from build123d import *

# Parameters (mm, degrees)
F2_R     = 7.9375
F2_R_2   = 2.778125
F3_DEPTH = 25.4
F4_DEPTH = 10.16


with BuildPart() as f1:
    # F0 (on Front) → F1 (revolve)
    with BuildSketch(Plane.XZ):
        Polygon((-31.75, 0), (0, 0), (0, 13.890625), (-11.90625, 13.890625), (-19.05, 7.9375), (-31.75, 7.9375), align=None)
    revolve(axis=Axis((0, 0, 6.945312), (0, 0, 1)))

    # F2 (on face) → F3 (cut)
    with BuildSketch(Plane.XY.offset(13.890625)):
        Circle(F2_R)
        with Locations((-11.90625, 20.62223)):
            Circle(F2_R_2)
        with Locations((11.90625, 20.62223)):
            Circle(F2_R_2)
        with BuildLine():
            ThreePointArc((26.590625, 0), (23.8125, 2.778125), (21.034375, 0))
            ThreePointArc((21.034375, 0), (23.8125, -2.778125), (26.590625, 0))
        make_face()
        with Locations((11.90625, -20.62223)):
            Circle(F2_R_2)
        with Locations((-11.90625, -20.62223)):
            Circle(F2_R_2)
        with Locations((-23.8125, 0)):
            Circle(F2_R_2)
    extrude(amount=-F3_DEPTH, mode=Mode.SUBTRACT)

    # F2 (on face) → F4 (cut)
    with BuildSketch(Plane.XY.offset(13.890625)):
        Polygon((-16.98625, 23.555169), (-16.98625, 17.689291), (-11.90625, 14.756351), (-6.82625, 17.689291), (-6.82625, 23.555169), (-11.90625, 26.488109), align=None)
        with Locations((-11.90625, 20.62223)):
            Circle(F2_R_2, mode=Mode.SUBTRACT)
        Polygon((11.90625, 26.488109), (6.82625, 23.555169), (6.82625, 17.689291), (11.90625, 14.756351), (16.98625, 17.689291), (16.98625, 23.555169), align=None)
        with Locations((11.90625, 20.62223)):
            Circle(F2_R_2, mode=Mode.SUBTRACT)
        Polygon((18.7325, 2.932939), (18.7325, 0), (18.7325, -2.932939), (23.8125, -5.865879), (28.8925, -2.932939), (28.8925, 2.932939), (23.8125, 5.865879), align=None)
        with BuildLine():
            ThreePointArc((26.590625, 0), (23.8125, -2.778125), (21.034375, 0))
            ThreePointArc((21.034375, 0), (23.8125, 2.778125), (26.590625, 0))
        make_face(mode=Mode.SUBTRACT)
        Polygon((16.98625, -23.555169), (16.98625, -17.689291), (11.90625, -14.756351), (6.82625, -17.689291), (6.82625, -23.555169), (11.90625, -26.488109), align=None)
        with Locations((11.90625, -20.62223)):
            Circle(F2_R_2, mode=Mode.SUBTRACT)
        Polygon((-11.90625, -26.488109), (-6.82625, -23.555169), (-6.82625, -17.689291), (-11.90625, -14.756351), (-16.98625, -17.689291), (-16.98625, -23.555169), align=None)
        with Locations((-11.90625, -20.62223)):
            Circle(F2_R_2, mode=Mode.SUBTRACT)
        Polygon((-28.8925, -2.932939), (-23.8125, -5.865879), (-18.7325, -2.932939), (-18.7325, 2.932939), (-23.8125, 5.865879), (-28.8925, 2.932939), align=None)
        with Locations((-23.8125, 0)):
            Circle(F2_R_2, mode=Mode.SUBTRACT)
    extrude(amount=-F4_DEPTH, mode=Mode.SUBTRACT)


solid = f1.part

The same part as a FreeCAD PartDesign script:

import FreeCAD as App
import Part
import Sketcher

V = App.Vector
Q = App.Units.Quantity

doc = App.newDocument("Part")
body = doc.addObject("PartDesign::Body", "Body")

sketch1 = body.newObject("Sketcher::SketchObject", "Sketch")
sketch1.AttachmentSupport = (doc.getObject("XZ_Plane"), [""])
sketch1.MapMode = "FlatFace"
sketch1.addGeometry([
    Part.LineSegment(V(-32, 0, 0), V(0, 0, 0)),
    Part.LineSegment(V(0, 0, 0), V(0, 14, 0)),
    Part.LineSegment(V(0, 14, 0), V(-12, 14, 0)),
    Part.LineSegment(V(-12, 14, 0), V(-19, 8, 0)),
    Part.LineSegment(V(-19, 8, 0), V(-32, 8, 0)),
    Part.LineSegment(V(-32, 8, 0), V(-32, 0, 0)),
], False)
sketch1.addConstraint([
    Sketcher.Constraint("Coincident", 0, 2, 1, 1),
    Sketcher.Constraint("Coincident", 1, 2, 2, 1),
    Sketcher.Constraint("Coincident", 2, 2, 3, 1),
    Sketcher.Constraint("Coincident", 3, 2, 4, 1),
    Sketcher.Constraint("Coincident", 4, 2, 5, 1),
    Sketcher.Constraint("Coincident", 5, 2, 0, 1),
    Sketcher.Constraint("Horizontal", 0),
    Sketcher.Constraint("Vertical", 1),
    Sketcher.Constraint("Horizontal", 2),
    Sketcher.Constraint("Horizontal", 4),
    Sketcher.Constraint("Vertical", 5),
    Sketcher.Constraint("Coincident", 0, 2, -1, 1),
    Sketcher.Constraint("DistanceX", 4, 2, 4, 1, Q("0.5 in")),
    Sketcher.Constraint("DistanceX", 0, 1, 0, 2, Q("1.25 in")),
    Sketcher.Constraint("DistanceX", 2, 2, 2, 1, Q("0.46875 in")),
    Sketcher.Constraint("DistanceY", 1, 1, 1, 2, Q("0.546875 in")),
    Sketcher.Constraint("DistanceY", 5, 2, 5, 1, Q("0.3125 in")),
])
revolution = body.newObject("PartDesign::Revolution", "Revolution")
revolution.Profile = sketch1
revolution.ReferenceAxis = (sketch1, ["V_Axis"])
revolution.Angle = 360

sketch2 = body.newObject("Sketcher::SketchObject", "Sketch001")
sketch2.AttachmentSupport = (doc.getObject("XY_Plane"), [""])
sketch2.MapMode = "FlatFace"
sketch2.AttachmentOffset = App.Placement(V(0, 0, 0.546875 * 25.4), App.Rotation())
sketch2.addGeometry([
    Part.Circle(V(0, 0, 0), V(0, 0, 1), 7.9),
    Part.Circle(V(-11.9, 20.6, 0), V(0, 0, 1), 2.8),
    Part.Circle(V(11.9, 20.6, 0), V(0, 0, 1), 2.8),
    Part.Circle(V(23.8, 0, 0), V(0, 0, 1), 2.8),
    Part.Circle(V(11.9, -20.6, 0), V(0, 0, 1), 2.8),
    Part.Circle(V(-11.9, -20.6, 0), V(0, 0, 1), 2.8),
    Part.Circle(V(-23.8, 0, 0), V(0, 0, 1), 2.8),
], False)
sketch2.addConstraint([
    Sketcher.Constraint("Coincident", 0, 3, -1, 1),
    Sketcher.Constraint("Equal", 1, 2),
    Sketcher.Constraint("Equal", 2, 3),
    Sketcher.Constraint("Equal", 3, 4),
    Sketcher.Constraint("Equal", 4, 5),
    Sketcher.Constraint("Equal", 5, 6),
    Sketcher.Constraint("Symmetric", 1, 3, 4, 3, -1, 1),
    Sketcher.Constraint("Symmetric", 2, 3, 5, 3, -1, 1),
    Sketcher.Constraint("Symmetric", 3, 3, 6, 3, -1, 1),
    Sketcher.Constraint("Symmetric", 1, 3, 2, 3, -2),
    Sketcher.Constraint("PointOnObject", 3, 3, -1),
    Sketcher.Constraint("Diameter", 0, Q("0.625 in")),
    Sketcher.Constraint("Diameter", 1, Q("0.21875 in")),
    Sketcher.Constraint("DistanceX", 1, 3, -1, 1, Q("0.46875 in")),
    Sketcher.Constraint("DistanceX", -1, 1, 3, 3, Q("0.9375 in")),
    Sketcher.Constraint("DistanceY", -1, 1, 1, 3, Q("20.62223 mm")),
])
pocket1 = body.newObject("PartDesign::Pocket", "Pocket")
pocket1.Profile = sketch2
pocket1.Length = Q("1 in")

sketch3 = body.newObject("Sketcher::SketchObject", "Sketch002")
sketch3.AttachmentSupport = (doc.getObject("XY_Plane"), [""])
sketch3.MapMode = "FlatFace"
sketch3.AttachmentOffset = App.Placement(V(0, 0, 0.546875 * 25.4), App.Rotation())
sketch3.addGeometry([
    Part.LineSegment(V(-17, 23.6, 0), V(-17, 17.7, 0)),
    Part.LineSegment(V(-17, 17.7, 0), V(-11.9, 14.8, 0)),
    Part.LineSegment(V(-11.9, 14.8, 0), V(-6.8, 17.7, 0)),
    Part.LineSegment(V(-6.8, 17.7, 0), V(-6.8, 23.6, 0)),
    Part.LineSegment(V(-6.8, 23.6, 0), V(-11.9, 26.5, 0)),
    Part.LineSegment(V(-11.9, 26.5, 0), V(-17, 23.6, 0)),
    Part.Circle(V(-11.9, 20.6, 0), V(0, 0, 1), 2.8),
    Part.LineSegment(V(11.9, 26.5, 0), V(6.8, 23.6, 0)),
    Part.LineSegment(V(6.8, 23.6, 0), V(6.8, 17.7, 0)),
    Part.LineSegment(V(6.8, 17.7, 0), V(11.9, 14.8, 0)),
    Part.LineSegment(V(11.9, 14.8, 0), V(17, 17.7, 0)),
    Part.LineSegment(V(17, 17.7, 0), V(17, 23.6, 0)),
    Part.LineSegment(V(17, 23.6, 0), V(11.9, 26.5, 0)),
    Part.Circle(V(11.9, 20.6, 0), V(0, 0, 1), 2.8),
    Part.LineSegment(V(18.7, 2.9, 0), V(18.7, -2.9, 0)),
    Part.LineSegment(V(18.7, -2.9, 0), V(23.8, -5.9, 0)),
    Part.LineSegment(V(23.8, -5.9, 0), V(28.9, -2.9, 0)),
    Part.LineSegment(V(28.9, -2.9, 0), V(28.9, 2.9, 0)),
    Part.LineSegment(V(28.9, 2.9, 0), V(23.8, 5.9, 0)),
    Part.LineSegment(V(23.8, 5.9, 0), V(18.7, 2.9, 0)),
    Part.Circle(V(23.8, 0, 0), V(0, 0, 1), 2.8),
    Part.LineSegment(V(17, -23.6, 0), V(17, -17.7, 0)),
    Part.LineSegment(V(17, -17.7, 0), V(11.9, -14.8, 0)),
    Part.LineSegment(V(11.9, -14.8, 0), V(6.8, -17.7, 0)),
    Part.LineSegment(V(6.8, -17.7, 0), V(6.8, -23.6, 0)),
    Part.LineSegment(V(6.8, -23.6, 0), V(11.9, -26.5, 0)),
    Part.LineSegment(V(11.9, -26.5, 0), V(17, -23.6, 0)),
    Part.Circle(V(11.9, -20.6, 0), V(0, 0, 1), 2.8),
    Part.LineSegment(V(-11.9, -26.5, 0), V(-6.8, -23.6, 0)),
    Part.LineSegment(V(-6.8, -23.6, 0), V(-6.8, -17.7, 0)),
    Part.LineSegment(V(-6.8, -17.7, 0), V(-11.9, -14.8, 0)),
    Part.LineSegment(V(-11.9, -14.8, 0), V(-17, -17.7, 0)),
    Part.LineSegment(V(-17, -17.7, 0), V(-17, -23.6, 0)),
    Part.LineSegment(V(-17, -23.6, 0), V(-11.9, -26.5, 0)),
    Part.Circle(V(-11.9, -20.6, 0), V(0, 0, 1), 2.8),
    Part.LineSegment(V(-28.9, -2.9, 0), V(-23.8, -5.9, 0)),
    Part.LineSegment(V(-23.8, -5.9, 0), V(-18.7, -2.9, 0)),
    Part.LineSegment(V(-18.7, -2.9, 0), V(-18.7, 2.9, 0)),
    Part.LineSegment(V(-18.7, 2.9, 0), V(-23.8, 5.9, 0)),
    Part.LineSegment(V(-23.8, 5.9, 0), V(-28.9, 2.9, 0)),
    Part.LineSegment(V(-28.9, 2.9, 0), V(-28.9, -2.9, 0)),
    Part.Circle(V(-23.8, 0, 0), V(0, 0, 1), 2.8),
], False)
sketch3.addConstraint([
    Sketcher.Constraint("Coincident", 0, 2, 1, 1),
    Sketcher.Constraint("Coincident", 1, 2, 2, 1),
    Sketcher.Constraint("Coincident", 2, 2, 3, 1),
    Sketcher.Constraint("Coincident", 3, 2, 4, 1),
    Sketcher.Constraint("Coincident", 4, 2, 5, 1),
    Sketcher.Constraint("Coincident", 5, 2, 0, 1),
    Sketcher.Constraint("Coincident", 7, 2, 8, 1),
    Sketcher.Constraint("Coincident", 8, 2, 9, 1),
    Sketcher.Constraint("Coincident", 9, 2, 10, 1),
    Sketcher.Constraint("Coincident", 10, 2, 11, 1),
    Sketcher.Constraint("Coincident", 11, 2, 12, 1),
    Sketcher.Constraint("Coincident", 12, 2, 7, 1),
    Sketcher.Constraint("Coincident", 14, 2, 15, 1),
    Sketcher.Constraint("Coincident", 15, 2, 16, 1),
    Sketcher.Constraint("Coincident", 16, 2, 17, 1),
    Sketcher.Constraint("Coincident", 17, 2, 18, 1),
    Sketcher.Constraint("Coincident", 18, 2, 19, 1),
    Sketcher.Constraint("Coincident", 19, 2, 14, 1),
    Sketcher.Constraint("Coincident", 21, 2, 22, 1),
    Sketcher.Constraint("Coincident", 22, 2, 23, 1),
    Sketcher.Constraint("Coincident", 23, 2, 24, 1),
    Sketcher.Constraint("Coincident", 24, 2, 25, 1),
    Sketcher.Constraint("Coincident", 25, 2, 26, 1),
    Sketcher.Constraint("Coincident", 26, 2, 21, 1),
    Sketcher.Constraint("Coincident", 28, 2, 29, 1),
    Sketcher.Constraint("Coincident", 29, 2, 30, 1),
    Sketcher.Constraint("Coincident", 30, 2, 31, 1),
    Sketcher.Constraint("Coincident", 31, 2, 32, 1),
    Sketcher.Constraint("Coincident", 32, 2, 33, 1),
    Sketcher.Constraint("Coincident", 33, 2, 28, 1),
    Sketcher.Constraint("Coincident", 35, 2, 36, 1),
    Sketcher.Constraint("Coincident", 36, 2, 37, 1),
    Sketcher.Constraint("Coincident", 37, 2, 38, 1),
    Sketcher.Constraint("Coincident", 38, 2, 39, 1),
    Sketcher.Constraint("Coincident", 39, 2, 40, 1),
    Sketcher.Constraint("Coincident", 40, 2, 35, 1),
    Sketcher.Constraint("Vertical", 0),
    Sketcher.Constraint("Vertical", 3),
    Sketcher.Constraint("Vertical", 8),
    Sketcher.Constraint("Vertical", 11),
    Sketcher.Constraint("Vertical", 14),
    Sketcher.Constraint("Vertical", 17),
    Sketcher.Constraint("Vertical", 21),
    Sketcher.Constraint("Vertical", 24),
    Sketcher.Constraint("Vertical", 29),
    Sketcher.Constraint("Vertical", 32),
    Sketcher.Constraint("Vertical", 37),
    Sketcher.Constraint("Vertical", 40),
    Sketcher.Constraint("Equal", 6, 13),
    Sketcher.Constraint("Equal", 13, 20),
    Sketcher.Constraint("Equal", 20, 27),
    Sketcher.Constraint("Equal", 27, 34),
    Sketcher.Constraint("Equal", 34, 41),
    Sketcher.Constraint("Symmetric", 6, 3, 27, 3, -1, 1),
    Sketcher.Constraint("Symmetric", 13, 3, 34, 3, -1, 1),
    Sketcher.Constraint("Symmetric", 20, 3, 41, 3, -1, 1),
    Sketcher.Constraint("Symmetric", 0, 2, 21, 2, -1, 1),
    Sketcher.Constraint("Symmetric", 1, 2, 22, 2, -1, 1),
    Sketcher.Constraint("Symmetric", 2, 2, 23, 2, -1, 1),
    Sketcher.Constraint("Symmetric", 4, 2, 25, 2, -1, 1),
    Sketcher.Constraint("Symmetric", 7, 2, 28, 2, -1, 1),
    Sketcher.Constraint("Symmetric", 9, 2, 30, 2, -1, 1),
    Sketcher.Constraint("Symmetric", 10, 2, 31, 2, -1, 1),
    Sketcher.Constraint("Symmetric", 12, 2, 33, 2, -1, 1),
    Sketcher.Constraint("Symmetric", 18, 2, 35, 2, -1, 1),
    Sketcher.Constraint("Symmetric", 19, 2, 36, 2, -1, 1),
    Sketcher.Constraint("Symmetric", 15, 2, 38, 2, -1, 1),
    Sketcher.Constraint("Symmetric", 16, 2, 39, 2, -1, 1),
    Sketcher.Constraint("Symmetric", 6, 3, 13, 3, -2),
    Sketcher.Constraint("Symmetric", 3, 2, 7, 2, -2),
    Sketcher.Constraint("Symmetric", 1, 2, 9, 2, -2),
    Sketcher.Constraint("Symmetric", 0, 2, 10, 2, -2),
    Sketcher.Constraint("Symmetric", 4, 2, 12, 2, -2),
    Sketcher.Constraint("Symmetric", 15, 2, 35, 2, -2),
    Sketcher.Constraint("PointOnObject", 20, 3, -1),
    Sketcher.Constraint("Parallel", 1, 4),
    Sketcher.Constraint("Parallel", 2, 5),
    Sketcher.Constraint("Parallel", 5, 7),
    Sketcher.Constraint("Parallel", 4, 9),
    Sketcher.Constraint("Parallel", 9, 12),
    Sketcher.Constraint("Parallel", 12, 15),
    Sketcher.Constraint("Parallel", 10, 16),
    Sketcher.Constraint("Parallel", 15, 18),
    Sketcher.Constraint("Parallel", 16, 19),
    Sketcher.Constraint("Parallel", 22, 25),
    Sketcher.Constraint("Parallel", 23, 26),
    Sketcher.Constraint("Parallel", 25, 30),
    Sketcher.Constraint("Parallel", 30, 33),
    Sketcher.Constraint("Parallel", 33, 35),
    Sketcher.Constraint("Parallel", 35, 38),
    Sketcher.Constraint("Horizontal", 0, 2, 2, 2),
    Sketcher.Constraint("Horizontal", 3, 2, 5, 2),
    Sketcher.Constraint("Horizontal", 14, 2, 16, 2),
    Sketcher.Constraint("Vertical", 34, 3, 1, 2),
    Sketcher.Constraint("Vertical", 20, 3, 15, 2),
    Sketcher.Constraint("Equal", 11, 14),
    Sketcher.Constraint("Equal", 12, 15),
    Sketcher.Constraint("Diameter", 6, Q("0.21875 in")),
    Sketcher.Constraint("Angle", 1, Q("-30.000005 deg")),
    Sketcher.Constraint("DistanceX", 0, 2, 6, 3, Q("0.2 in")),
    Sketcher.Constraint("DistanceX", 6, 3, -1, 1, Q("0.46875 in")),
    Sketcher.Constraint("DistanceX", -1, 1, 20, 3, Q("0.9375 in")),
    Sketcher.Constraint("DistanceY", 14, 2, 14, 1, Q("5.865878 mm")),
    Sketcher.Constraint("DistanceY", -1, 1, 6, 3, Q("20.62223 mm")),
    Sketcher.Constraint("DistanceY", -1, 1, 0, 2, Q("17.689291 mm")),
])
pocket2 = body.newObject("PartDesign::Pocket", "Pocket001")
pocket2.Profile = sketch3
pocket2.Length = Q("0.4 in")

doc.recompute()
